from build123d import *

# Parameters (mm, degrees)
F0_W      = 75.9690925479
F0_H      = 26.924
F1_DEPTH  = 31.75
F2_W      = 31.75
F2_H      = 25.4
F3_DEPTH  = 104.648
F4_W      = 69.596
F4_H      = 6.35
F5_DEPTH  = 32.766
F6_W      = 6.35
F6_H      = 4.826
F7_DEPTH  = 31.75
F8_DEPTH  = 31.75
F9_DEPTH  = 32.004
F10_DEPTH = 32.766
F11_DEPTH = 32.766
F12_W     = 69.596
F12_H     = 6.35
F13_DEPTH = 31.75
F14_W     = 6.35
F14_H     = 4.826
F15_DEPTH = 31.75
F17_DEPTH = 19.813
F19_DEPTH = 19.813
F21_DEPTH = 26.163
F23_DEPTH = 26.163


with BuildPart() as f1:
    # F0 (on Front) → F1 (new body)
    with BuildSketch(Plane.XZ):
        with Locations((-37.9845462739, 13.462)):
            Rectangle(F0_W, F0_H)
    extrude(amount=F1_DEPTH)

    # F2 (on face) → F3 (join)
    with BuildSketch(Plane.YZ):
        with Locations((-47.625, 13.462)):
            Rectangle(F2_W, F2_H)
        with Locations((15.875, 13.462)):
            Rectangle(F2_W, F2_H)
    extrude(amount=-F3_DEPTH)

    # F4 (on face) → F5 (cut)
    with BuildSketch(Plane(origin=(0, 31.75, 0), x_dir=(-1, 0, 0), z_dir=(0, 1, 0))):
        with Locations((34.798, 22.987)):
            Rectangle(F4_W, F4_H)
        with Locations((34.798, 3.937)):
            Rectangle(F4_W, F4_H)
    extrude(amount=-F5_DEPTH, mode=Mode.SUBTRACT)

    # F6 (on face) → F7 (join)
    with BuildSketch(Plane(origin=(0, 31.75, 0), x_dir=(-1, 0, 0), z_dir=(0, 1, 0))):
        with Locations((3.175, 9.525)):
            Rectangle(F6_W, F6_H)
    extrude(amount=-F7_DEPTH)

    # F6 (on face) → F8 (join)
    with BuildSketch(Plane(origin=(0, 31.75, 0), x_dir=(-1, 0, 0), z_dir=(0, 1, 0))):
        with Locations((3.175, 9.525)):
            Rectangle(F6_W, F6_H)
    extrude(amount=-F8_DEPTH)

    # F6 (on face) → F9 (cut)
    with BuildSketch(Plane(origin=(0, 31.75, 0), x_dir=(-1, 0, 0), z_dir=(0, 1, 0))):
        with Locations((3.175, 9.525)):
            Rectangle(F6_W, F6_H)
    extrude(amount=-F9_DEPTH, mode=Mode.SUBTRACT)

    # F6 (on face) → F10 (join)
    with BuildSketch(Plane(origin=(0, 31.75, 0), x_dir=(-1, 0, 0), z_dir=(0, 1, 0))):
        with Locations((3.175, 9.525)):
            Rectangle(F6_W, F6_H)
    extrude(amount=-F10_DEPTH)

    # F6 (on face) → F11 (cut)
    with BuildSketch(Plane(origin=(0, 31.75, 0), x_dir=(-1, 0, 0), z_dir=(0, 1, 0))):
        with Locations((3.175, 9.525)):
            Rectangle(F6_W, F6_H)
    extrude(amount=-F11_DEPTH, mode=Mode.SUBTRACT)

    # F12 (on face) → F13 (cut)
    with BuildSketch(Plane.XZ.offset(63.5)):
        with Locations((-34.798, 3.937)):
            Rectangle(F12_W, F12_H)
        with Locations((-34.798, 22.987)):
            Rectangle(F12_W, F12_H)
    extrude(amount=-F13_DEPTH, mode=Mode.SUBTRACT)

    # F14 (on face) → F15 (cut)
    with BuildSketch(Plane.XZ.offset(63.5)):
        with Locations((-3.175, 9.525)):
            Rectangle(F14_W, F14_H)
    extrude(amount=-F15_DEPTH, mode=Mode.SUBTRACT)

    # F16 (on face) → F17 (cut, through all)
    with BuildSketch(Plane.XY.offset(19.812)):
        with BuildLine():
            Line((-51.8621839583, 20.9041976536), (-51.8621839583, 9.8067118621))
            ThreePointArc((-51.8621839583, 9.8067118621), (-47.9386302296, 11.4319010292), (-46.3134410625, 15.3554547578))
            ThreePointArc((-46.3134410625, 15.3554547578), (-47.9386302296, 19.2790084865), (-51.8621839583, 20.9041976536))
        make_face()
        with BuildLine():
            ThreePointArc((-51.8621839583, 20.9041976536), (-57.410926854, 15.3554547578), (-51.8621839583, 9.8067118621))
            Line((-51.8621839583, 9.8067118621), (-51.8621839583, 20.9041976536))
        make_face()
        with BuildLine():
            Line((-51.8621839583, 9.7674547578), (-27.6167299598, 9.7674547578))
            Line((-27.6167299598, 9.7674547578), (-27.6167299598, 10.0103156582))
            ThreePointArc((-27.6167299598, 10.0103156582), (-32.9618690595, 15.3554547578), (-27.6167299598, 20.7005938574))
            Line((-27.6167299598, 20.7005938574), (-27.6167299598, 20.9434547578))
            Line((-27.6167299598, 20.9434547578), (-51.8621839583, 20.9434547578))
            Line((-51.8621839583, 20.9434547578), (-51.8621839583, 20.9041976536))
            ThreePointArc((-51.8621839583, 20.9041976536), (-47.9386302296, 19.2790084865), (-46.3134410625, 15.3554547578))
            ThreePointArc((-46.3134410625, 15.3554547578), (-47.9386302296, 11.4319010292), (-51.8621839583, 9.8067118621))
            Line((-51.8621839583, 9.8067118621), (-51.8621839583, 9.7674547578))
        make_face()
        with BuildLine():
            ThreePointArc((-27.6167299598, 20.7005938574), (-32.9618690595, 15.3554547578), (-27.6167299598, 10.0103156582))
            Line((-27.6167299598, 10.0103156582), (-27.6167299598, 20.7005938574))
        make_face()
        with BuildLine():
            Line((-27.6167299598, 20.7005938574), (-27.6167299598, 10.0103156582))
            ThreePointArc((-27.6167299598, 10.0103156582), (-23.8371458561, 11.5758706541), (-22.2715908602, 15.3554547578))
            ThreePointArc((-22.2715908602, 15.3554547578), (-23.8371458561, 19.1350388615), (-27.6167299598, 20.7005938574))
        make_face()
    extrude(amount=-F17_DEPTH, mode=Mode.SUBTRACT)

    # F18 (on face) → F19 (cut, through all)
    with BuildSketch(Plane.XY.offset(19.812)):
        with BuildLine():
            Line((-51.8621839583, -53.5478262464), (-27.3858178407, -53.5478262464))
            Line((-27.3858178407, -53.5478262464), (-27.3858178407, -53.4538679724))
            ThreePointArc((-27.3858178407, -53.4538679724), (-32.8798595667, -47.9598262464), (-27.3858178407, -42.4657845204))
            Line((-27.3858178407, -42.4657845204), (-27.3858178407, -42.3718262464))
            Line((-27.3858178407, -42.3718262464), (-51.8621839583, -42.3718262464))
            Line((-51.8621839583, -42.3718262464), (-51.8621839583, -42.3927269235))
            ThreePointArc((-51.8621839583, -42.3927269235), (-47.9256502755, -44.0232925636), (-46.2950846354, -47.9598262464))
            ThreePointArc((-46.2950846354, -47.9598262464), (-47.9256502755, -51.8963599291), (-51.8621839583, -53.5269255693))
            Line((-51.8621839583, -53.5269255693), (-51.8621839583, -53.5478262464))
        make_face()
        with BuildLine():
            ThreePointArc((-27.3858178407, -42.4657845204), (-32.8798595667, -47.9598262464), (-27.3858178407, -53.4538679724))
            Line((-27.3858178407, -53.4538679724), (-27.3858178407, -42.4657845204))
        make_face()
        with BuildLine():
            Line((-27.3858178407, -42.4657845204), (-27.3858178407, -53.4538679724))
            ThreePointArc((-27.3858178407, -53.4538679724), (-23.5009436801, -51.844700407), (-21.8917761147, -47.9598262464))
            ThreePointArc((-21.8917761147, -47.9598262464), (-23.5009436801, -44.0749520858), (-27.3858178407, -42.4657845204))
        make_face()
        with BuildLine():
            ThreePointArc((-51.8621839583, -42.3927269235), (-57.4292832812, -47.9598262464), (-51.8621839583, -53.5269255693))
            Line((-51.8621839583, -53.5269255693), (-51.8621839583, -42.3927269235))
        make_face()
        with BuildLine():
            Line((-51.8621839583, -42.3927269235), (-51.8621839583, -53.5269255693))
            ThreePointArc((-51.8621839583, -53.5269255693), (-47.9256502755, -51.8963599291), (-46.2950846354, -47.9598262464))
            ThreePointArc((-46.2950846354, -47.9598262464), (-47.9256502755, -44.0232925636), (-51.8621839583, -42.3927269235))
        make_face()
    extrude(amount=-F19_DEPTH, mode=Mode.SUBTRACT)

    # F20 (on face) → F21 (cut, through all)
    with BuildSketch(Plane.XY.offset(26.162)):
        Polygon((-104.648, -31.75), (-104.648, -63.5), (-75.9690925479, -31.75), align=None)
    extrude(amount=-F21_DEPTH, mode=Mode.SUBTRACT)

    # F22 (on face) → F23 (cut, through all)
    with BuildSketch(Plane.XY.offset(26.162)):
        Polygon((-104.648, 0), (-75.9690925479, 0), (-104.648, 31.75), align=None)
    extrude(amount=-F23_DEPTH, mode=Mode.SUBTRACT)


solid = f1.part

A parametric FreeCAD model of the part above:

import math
import FreeCAD as App
import Part
import Sketcher
from FreeCAD import Vector
Q = App.Units.Quantity


def add_polygon(sketch, points):
    """Adds a closed chain of lines whose ends are joined by coincident constraints."""
    first, n = sketch.GeometryCount, len(points)
    for a, b in zip(points, points[1:] + points[:1]):
        sketch.addGeometry(Part.LineSegment(App.Vector(*a, 0), App.Vector(*b, 0)), False)
    for i in range(n):
        sketch.addConstraint(Sketcher.Constraint("Coincident", first + i, 2, first + (i + 1) % n, 1))

doc = App.newDocument("Part")
body = doc.addObject("PartDesign::Body", "Body")

# Sketch on XZ plane
sketch1 = body.newObject("Sketcher::SketchObject", "Sketch")
sketch1.AttachmentSupport = (doc.getObject("XZ_Plane"), [""])
sketch1.MapMode = "FlatFace"
add_polygon(sketch1, [(-76, 27), (-76, 0), (0, 0), (0, 27)])  # lines 0-3
sketch1.addConstraint([
    Sketcher.Constraint("Vertical", 0),
    Sketcher.Constraint("Horizontal", 1),
    Sketcher.Constraint("Vertical", 2),
    Sketcher.Constraint("Horizontal", 3),
    Sketcher.Constraint("Coincident", 1, 2, -1, 1),
    Sketcher.Constraint("DistanceY", 0, 2, 0, 1, Q("1.06 in")),
    Sketcher.Constraint("DistanceX", 1, 1, 1, 2, Q("75.969093 mm")),
])
pad1 = body.newObject("PartDesign::Pad", "Pad")
pad1.Profile = sketch1
pad1.Length = Q("1.25 in")

# Sketch on YZ plane
sketch2 = body.newObject("Sketcher::SketchObject", "Sketch001")
sketch2.AttachmentSupport = (doc.getObject("YZ_Plane"), [""])
sketch2.MapMode = "FlatFace"
add_polygon(sketch2, [(-64, 26), (-64, 1), (-32, 1), (-32, 26)])  # lines 0-3
add_polygon(sketch2, [(0, 26), (0, 1), (32, 1), (32, 26)])  # lines 4-7
sketch2.addConstraint([
    Sketcher.Constraint("Vertical", 0),
    Sketcher.Constraint("Horizontal", 1),
    Sketcher.Constraint("Vertical", 2),
    Sketcher.Constraint("Horizontal", 3),
    Sketcher.Constraint("Vertical", 4),
    Sketcher.Constraint("Horizontal", 5),
    Sketcher.Constraint("Vertical", 6),
    Sketcher.Constraint("Horizontal", 7),
    Sketcher.Constraint("Symmetric", 1, 2, 5, 2, -2),
    Sketcher.Constraint("PointOnObject", 4, 2, -2),
    Sketcher.Constraint("Horizontal", 3, 2, 6, 2),
    Sketcher.Constraint("Equal", 3, 5),
    Sketcher.Constraint("DistanceY", 0, 2, 0, 1, Q("1 in")),
    Sketcher.Constraint("DistanceX", 1, 1, 1, 2, Q("1.25 in")),
    Sketcher.Constraint("DistanceY", -1, 1, 0, 2, Q("0.03 in")),
])
pad2 = body.newObject("PartDesign::Pad", "Pad001")
pad2.Profile = sketch2
pad2.Length = Q("4.12 in")
pad2.Reversed = True

# Sketch on XZ plane
sketch3 = body.newObject("Sketcher::SketchObject", "Sketch002")
sketch3.AttachmentSupport = (doc.getObject("XZ_Plane"), [""])
sketch3.MapMode = "FlatFace"
sketch3.AttachmentOffset = App.Placement(Vector(0, 0, -1.25 * 25.4), App.Rotation())
add_polygon(sketch3, [(0, 26), (0, 20), (-70, 20), (-70, 26)])  # lines 0-3
add_polygon(sketch3, [(0, 7), (0, 1), (-70, 1), (-70, 7)])  # lines 4-7
sketch3.addConstraint([
    Sketcher.Constraint("Vertical", 0),
    Sketcher.Constraint("Horizontal", 1),
    Sketcher.Constraint("Vertical", 2),
    Sketcher.Constraint("Horizontal", 3),
    Sketcher.Constraint("Vertical", 4),
    Sketcher.Constraint("Horizontal", 5),
    Sketcher.Constraint("Vertical", 6),
    Sketcher.Constraint("Horizontal", 7),
    Sketcher.Constraint("PointOnObject", 0, 2, -2),
    Sketcher.Constraint("PointOnObject", 4, 2, -2),
    Sketcher.Constraint("Vertical", 2, 2, 5, 2),
    Sketcher.Constraint("Equal", 2, 4),
    Sketcher.Constraint("DistanceY", 4, 2, 3, 2, Q("1 in")),
    Sketcher.Constraint("DistanceX", 1, 2, 1, 1, Q("2.74 in")),
    Sketcher.Constraint("DistanceY", 0, 2, 0, 1, Q("0.25 in")),
    Sketcher.Constraint("DistanceY", -1, 1, 0, 2, Q("0.78 in")),
])
pocket1 = body.newObject("PartDesign::Pocket", "Pocket")
pocket1.Profile = sketch3
pocket1.Length = Q("1.29 in")
pocket1.Reversed = True

# Sketch on XZ plane
sketch4 = body.newObject("Sketcher::SketchObject", "Sketch003")
sketch4.AttachmentSupport = (doc.getObject("XZ_Plane"), [""])
sketch4.MapMode = "FlatFace"
sketch4.AttachmentOffset = App.Placement(Vector(0, 0, -1.25 * 25.4), App.Rotation())
add_polygon(sketch4, [(0, 11.9), (0, 7.1), (-6.3, 7.1), (-6.3, 11.9)])  # lines 0-3
sketch4.addConstraint([
    Sketcher.Constraint("Vertical", 0),
    Sketcher.Constraint("Horizontal", 1),
    Sketcher.Constraint("Vertical", 2),
    Sketcher.Constraint("Horizontal", 3),
    Sketcher.Constraint("PointOnObject", 0, 2, -2),
    Sketcher.Constraint("DistanceX", 1, 2, 1, 1, Q("0.25 in")),
    Sketcher.Constraint("DistanceY", 0, 2, 0, 1, Q("0.19 in")),
    Sketcher.Constraint("DistanceY", -1, 1, 0, 2, Q("0.28 in")),
])
pad3 = body.newObject("PartDesign::Pad", "Pad002")
pad3.Profile = sketch4
pad3.Length = Q("1.25 in")

# Sketch on XZ plane
sketch5 = body.newObject("Sketcher::SketchObject", "Sketch004")
sketch5.AttachmentSupport = (doc.getObject("XZ_Plane"), [""])
sketch5.MapMode = "FlatFace"
sketch5.AttachmentOffset = App.Placement(Vector(0, 0, -1.25 * 25.4), App.Rotation())
add_polygon(sketch5, [(0, 11.9), (0, 7.1), (-6.3, 7.1), (-6.3, 11.9)])  # lines 0-3
sketch5.addConstraint([
    Sketcher.Constraint("Vertical", 0),
    Sketcher.Constraint("Horizontal", 1),
    Sketcher.Constraint("Vertical", 2),
    Sketcher.Constraint("Horizontal", 3),
    Sketcher.Constraint("PointOnObject", 0, 2, -2),
    Sketcher.Constraint("DistanceX", 1, 2, 1, 1, Q("0.25 in")),
    Sketcher.Constraint("DistanceY", 0, 2, 0, 1, Q("0.19 in")),
    Sketcher.Constraint("DistanceY", -1, 1, 0, 2, Q("0.28 in")),
])
pad4 = body.newObject("PartDesign::Pad", "Pad003")
pad4.Profile = sketch5
pad4.Length = Q("1.25 in")

# Sketch on XZ plane
sketch6 = body.newObject("Sketcher::SketchObject", "Sketch005")
sketch6.AttachmentSupport = (doc.getObject("XZ_Plane"), [""])
sketch6.MapMode = "FlatFace"
sketch6.AttachmentOffset = App.Placement(Vector(0, 0, -1.25 * 25.4), App.Rotation())
add_polygon(sketch6, [(0, 11.9), (0, 7.1), (-6.3, 7.1), (-6.3, 11.9)])  # lines 0-3
sketch6.addConstraint([
    Sketcher.Constraint("Vertical", 0),
    Sketcher.Constraint("Horizontal", 1),
    Sketcher.Constraint("Vertical", 2),
    Sketcher.Constraint("Horizontal", 3),
    Sketcher.Constraint("PointOnObject", 0, 2, -2),
    Sketcher.Constraint("DistanceX", 1, 2, 1, 1, Q("0.25 in")),
    Sketcher.Constraint("DistanceY", 0, 2, 0, 1, Q("0.19 in")),
    Sketcher.Constraint("DistanceY", -1, 1, 0, 2, Q("0.28 in")),
])
pocket2 = body.newObject("PartDesign::Pocket", "Pocket001")
pocket2.Profile = sketch6
pocket2.Length = Q("1.26 in")
pocket2.Reversed = True

# Sketch on XZ plane
sketch7 = body.newObject("Sketcher::SketchObject", "Sketch006")
sketch7.AttachmentSupport = (doc.getObject("XZ_Plane"), [""])
sketch7.MapMode = "FlatFace"
sketch7.AttachmentOffset = App.Placement(Vector(0, 0, -1.25 * 25.4), App.Rotation())
add_polygon(sketch7, [(0, 11.9), (0, 7.1), (-6.3, 7.1), (-6.3, 11.9)])  # lines 0-3
sketch7.addConstraint([
    Sketcher.Constraint("Vertical", 0),
    Sketcher.Constraint("Horizontal", 1),
    Sketcher.Constraint("Vertical", 2),
    Sketcher.Constraint("Horizontal", 3),
    Sketcher.Constraint("PointOnObject", 0, 2, -2),
    Sketcher.Constraint("DistanceX", 1, 2, 1, 1, Q("0.25 in")),
    Sketcher.Constraint("DistanceY", 0, 2, 0, 1, Q("0.19 in")),
    Sketcher.Constraint("DistanceY", -1, 1, 0, 2, Q("0.28 in")),
])
pad5 = body.newObject("PartDesign::Pad", "Pad004")
pad5.Profile = sketch7
pad5.Length = Q("1.29 in")

# Sketch on XZ plane
sketch8 = body.newObject("Sketcher::SketchObject", "Sketch007")
sketch8.AttachmentSupport = (doc.getObject("XZ_Plane"), [""])
sketch8.MapMode = "FlatFace"
sketch8.AttachmentOffset = App.Placement(Vector(0, 0, -1.25 * 25.4), App.Rotation())
add_polygon(sketch8, [(0, 11.9), (0, 7.1), (-6.3, 7.1), (-6.3, 11.9)])  # lines 0-3
sketch8.addConstraint([
    Sketcher.Constraint("Vertical", 0),
    Sketcher.Constraint("Horizontal", 1),
    Sketcher.Constraint("Vertical", 2),
    Sketcher.Constraint("Horizontal", 3),
    Sketcher.Constraint("PointOnObject", 0, 2, -2),
    Sketcher.Constraint("DistanceX", 1, 2, 1, 1, Q("0.25 in")),
    Sketcher.Constraint("DistanceY", 0, 2, 0, 1, Q("0.19 in")),
    Sketcher.Constraint("DistanceY", -1, 1, 0, 2, Q("0.28 in")),
])
pocket3 = body.newObject("PartDesign::Pocket", "Pocket002")
pocket3.Profile = sketch8
pocket3.Length = Q("1.29 in")
pocket3.Reversed = True

# Sketch on XZ plane
sketch9 = body.newObject("Sketcher::SketchObject", "Sketch008")
sketch9.AttachmentSupport = (doc.getObject("XZ_Plane"), [""])
sketch9.MapMode = "FlatFace"
sketch9.AttachmentOffset = App.Placement(Vector(0, 0, 2.5 * 25.4), App.Rotation())
add_polygon(sketch9, [(-70, 7), (-70, 1), (0, 1), (0, 7)])  # lines 0-3
add_polygon(sketch9, [(-70, 26), (-70, 20), (0, 20), (0, 26)])  # lines 4-7
sketch9.addConstraint([
    Sketcher.Constraint("Vertical", 0),
    Sketcher.Constraint("Horizontal", 1),
    Sketcher.Constraint("Vertical", 2),
    Sketcher.Constraint("Horizontal", 3),
    Sketcher.Constraint("Vertical", 4),
    Sketcher.Constraint("Horizontal", 5),
    Sketcher.Constraint("Vertical", 6),
    Sketcher.Constraint("Horizontal", 7),
    Sketcher.Constraint("PointOnObject", 1, 2, -2),
    Sketcher.Constraint("PointOnObject", 5, 2, -2),
    Sketcher.Constraint("Vertical", 3, 2, 4, 2),
    Sketcher.Constraint("Equal", 2, 4),
    Sketcher.Constraint("DistanceY", 1, 2, 6, 2, Q("1 in")),
    Sketcher.Constraint("DistanceX", 1, 1, 1, 2, Q("2.74 in")),
    Sketcher.Constraint("DistanceY", 0, 2, 0, 1, Q("0.25 in")),
    Sketcher.Constraint("DistanceY", -1, 1, 0, 2, Q("0.03 in")),
])
pocket4 = body.newObject("PartDesign::Pocket", "Pocket003")
pocket4.Profile = sketch9
pocket4.Length = Q("1.25 in")

# Sketch on XZ plane
sketch10 = body.newObject("Sketcher::SketchObject", "Sketch009")
sketch10.AttachmentSupport = (doc.getObject("XZ_Plane"), [""])
sketch10.MapMode = "FlatFace"
sketch10.AttachmentOffset = App.Placement(Vector(0, 0, 2.5 * 25.4), App.Rotation())
add_polygon(sketch10, [(-6.3, 11.9), (-6.3, 7.1), (0, 7.1), (0, 11.9)])  # lines 0-3
sketch10.addConstraint([
    Sketcher.Constraint("Vertical", 0),
    Sketcher.Constraint("Horizontal", 1),
    Sketcher.Constraint("Vertical", 2),
    Sketcher.Constraint("Horizontal", 3),
    Sketcher.Constraint("PointOnObject", 1, 2, -2),
    Sketcher.Constraint("DistanceX", 1, 1, 1, 2, Q("0.25 in")),
    Sketcher.Constraint("DistanceY", 0, 2, 0, 1, Q("0.19 in")),
    Sketcher.Constraint("DistanceY", -1, 1, 0, 2, Q("0.28 in")),
])
pocket5 = body.newObject("PartDesign::Pocket", "Pocket004")
pocket5.Profile = sketch10
pocket5.Length = Q("1.25 in")

# Sketch on XY plane
sketch11 = body.newObject("Sketcher::SketchObject", "Sketch010")
sketch11.AttachmentSupport = (doc.getObject("XY_Plane"), [""])
sketch11.MapMode = "FlatFace"
sketch11.AttachmentOffset = App.Placement(Vector(0, 0, 0.78 * 25.4), App.Rotation())
sketch11.addGeometry([
    Part.ArcOfCircle(Part.Circle(Vector(-51.862, 15.355, 0), Vector(0, 0, 1), 5.549), math.radians(90), math.radians(270)),  # 0
    Part.LineSegment(Vector(-51.862, 9.807, 0), Vector(-51.862, 9.767, 0)),  # 1
    Part.LineSegment(Vector(-51.862, 9.767, 0), Vector(-27.617, 9.767, 0)),  # 2
    Part.LineSegment(Vector(-27.617, 9.767, 0), Vector(-27.617, 10.01, 0)),  # 3
    Part.ArcOfCircle(Part.Circle(Vector(-27.617, 15.355, 0), Vector(0, 0, 1), 5.345), math.radians(-90), math.radians(0)),  # 4
    Part.ArcOfCircle(Part.Circle(Vector(-27.617, 15.355, 0), Vector(0, 0, 1), 5.345), math.radians(0), math.radians(90)),  # 5
    Part.LineSegment(Vector(-27.617, 20.701, 0), Vector(-27.617, 20.943, 0)),  # 6
    Part.LineSegment(Vector(-27.617, 20.943, 0), Vector(-51.862, 20.943, 0)),  # 7
    Part.LineSegment(Vector(-51.862, 20.943, 0), Vector(-51.862, 20.904, 0)),  # 8
], False)
sketch11.addConstraint([
    Sketcher.Constraint("Coincident", 0, 2, 1, 1),
    Sketcher.Constraint("Coincident", 1, 2, 2, 1),
    Sketcher.Constraint("Coincident", 2, 2, 3, 1),
    Sketcher.Constraint("Coincident", 3, 2, 4, 1),
    Sketcher.Constraint("Tangent", 4, 2, 5, 1),
    Sketcher.Constraint("Coincident", 5, 2, 6, 1),
    Sketcher.Constraint("Coincident", 6, 2, 7, 1),
    Sketcher.Constraint("Coincident", 7, 2, 8, 1),
    Sketcher.Constraint("Coincident", 8, 2, 0, 1),
    Sketcher.Constraint("Vertical", 1),
    Sketcher.Constraint("Horizontal", 2),
    Sketcher.Constraint("Vertical", 3),
    Sketcher.Constraint("Vertical", 6),
    Sketcher.Constraint("Horizontal", 7),
    Sketcher.Constraint("Vertical", 8),
    Sketcher.Constraint("Equal", 4, 5),
    Sketcher.Constraint("Horizontal", 0, 3, 4, 3),
    Sketcher.Constraint("Horizontal", 5, 3, 4, 2),
    Sketcher.Constraint("Vertical", 5, 3, 2, 2),
    Sketcher.Constraint("Vertical", 3, 2, 5, 2),
    Sketcher.Constraint("Vertical", 1, 2, 7, 2),
    Sketcher.Constraint("Equal", 3, 6),
    Sketcher.Constraint("DistanceY", 1, 2, 0, 3, Q("0.22 in")),
    Sketcher.Constraint("DistanceY", -1, 1, 8, 2, Q("0.8229999 in")),
    Sketcher.Constraint("Radius", 4, Q("5.345139 mm")),
    Sketcher.Constraint("Radius", 0, Q("5.548743 mm")),
    Sketcher.Constraint("DistanceX", 2, 1, 2, 2, Q("24.245454 mm")),
    Sketcher.Constraint("DistanceX", 4, 3, -1, 1, Q("27.61673 mm")),
    Sketcher.Constraint("DistanceX", 0, 3, -1, 1, Q("51.862184 mm")),
])
pocket6 = body.newObject("PartDesign::Pocket", "Pocket005")
pocket6.Profile = sketch11
pocket6.Type = "ThroughAll"

# Sketch on XY plane
sketch12 = body.newObject("Sketcher::SketchObject", "Sketch011")
sketch12.AttachmentSupport = (doc.getObject("XY_Plane"), [""])
sketch12.MapMode = "FlatFace"
sketch12.AttachmentOffset = App.Placement(Vector(0, 0, 0.78 * 25.4), App.Rotation())
sketch12.addGeometry([
    Part.LineSegment(Vector(-51.862, -53.548, 0), Vector(-27.386, -53.548, 0)),  # 0
    Part.LineSegment(Vector(-27.386, -53.548, 0), Vector(-27.386, -53.454, 0)),  # 1
    Part.ArcOfCircle(Part.Circle(Vector(-27.386, -47.96, 0), Vector(0, 0, 1), 5.494), math.radians(-90), math.radians(0)),  # 2
    Part.ArcOfCircle(Part.Circle(Vector(-27.386, -47.96, 0), Vector(0, 0, 1), 5.494), math.radians(0), math.radians(90)),  # 3
    Part.LineSegment(Vector(-27.386, -42.466, 0), Vector(-27.386, -42.372, 0)),  # 4
    Part.LineSegment(Vector(-27.386, -42.372, 0), Vector(-51.862, -42.372, 0)),  # 5
    Part.LineSegment(Vector(-51.862, -42.372, 0), Vector(-51.862, -42.393, 0)),  # 6
    Part.ArcOfCircle(Part.Circle(Vector(-51.862, -47.96, 0), Vector(0, 0, 1), 5.567), math.radians(90), math.radians(270)),  # 7
    Part.LineSegment(Vector(-51.862, -53.527, 0), Vector(-51.862, -53.548, 0)),  # 8
], False)
sketch12.addConstraint([
    Sketcher.Constraint("Coincident", 0, 2, 1, 1),
    Sketcher.Constraint("Coincident", 1, 2, 2, 1),
    Sketcher.Constraint("Tangent", 2, 2, 3, 1),
    Sketcher.Constraint("Coincident", 3, 2, 4, 1),
    Sketcher.Constraint("Coincident", 4, 2, 5, 1),
    Sketcher.Constraint("Coincident", 5, 2, 6, 1),
    Sketcher.Constraint("Coincident", 6, 2, 7, 1),
    Sketcher.Constraint("Coincident", 7, 2, 8, 1),
    Sketcher.Constraint("Coincident", 8, 2, 0, 1),
    Sketcher.Constraint("Horizontal", 0),
    Sketcher.Constraint("Vertical", 1),
    Sketcher.Constraint("Vertical", 4),
    Sketcher.Constraint("Horizontal", 5),
    Sketcher.Constraint("Vertical", 6),
    Sketcher.Constraint("Vertical", 8),
    Sketcher.Constraint("Equal", 2, 3),
    Sketcher.Constraint("Horizontal", 3, 3, 7, 3),
    Sketcher.Constraint("Horizontal", 7, 3, 2, 2),
    Sketcher.Constraint("Vertical", 3, 3, 0, 2),
    Sketcher.Constraint("Vertical", 1, 2, 3, 2),
    Sketcher.Constraint("Vertical", 7, 3, 5, 2),
    Sketcher.Constraint("Vertical", 6, 2, 7, 2),
    Sketcher.Constraint("Equal", 1, 4),
    Sketcher.Constraint("Radius", 7, Q("5.567099 mm")),
    Sketcher.Constraint("DistanceY", 0, 2, 2, 3, Q("0.22 in")),
    Sketcher.Constraint("Radius", 2, Q("5.494042 mm")),
    Sketcher.Constraint("DistanceX", 0, 1, 0, 2, Q("24.476366 mm")),
    Sketcher.Constraint("DistanceX", 2, 3, -1, 1, Q("27.385818 mm")),
    Sketcher.Constraint("DistanceY", 2, 3, -1, 1, Q("47.959826 mm")),
])
pocket7 = body.newObject("PartDesign::Pocket", "Pocket006")
pocket7.Profile = sketch12
pocket7.Type = "ThroughAll"

# Sketch on XY plane
sketch13 = body.newObject("Sketcher::SketchObject", "Sketch012")
sketch13.AttachmentSupport = (doc.getObject("XY_Plane"), [""])
sketch13.MapMode = "FlatFace"
sketch13.AttachmentOffset = App.Placement(Vector(0, 0, 1.03 * 25.4), App.Rotation())
add_polygon(sketch13, [(-105, -32), (-105, -64), (-76, -32)])  # lines 0-2
sketch13.addConstraint([
    Sketcher.Constraint("Vertical", 0),
    Sketcher.Constraint("Horizontal", 2),
    Sketcher.Constraint("DistanceY", 0, 2, 0, 1, Q("1.25 in")),
    Sketcher.Constraint("DistanceY", 0, 2, -1, 1, Q("2.5 in")),
    Sketcher.Constraint("DistanceX", 0, 2, -1, 1, Q("4.12 in")),
    Sketcher.Constraint("DistanceX", 2, 2, 2, 1, Q("28.678907 mm")),
])
pocket8 = body.newObject("PartDesign::Pocket", "Pocket007")
pocket8.Profile = sketch13
pocket8.Type = "ThroughAll"

# Sketch on XY plane
sketch14 = body.newObject("Sketcher::SketchObject", "Sketch013")
sketch14.AttachmentSupport = (doc.getObject("XY_Plane"), [""])
sketch14.MapMode = "FlatFace"
sketch14.AttachmentOffset = App.Placement(Vector(0, 0, 1.03 * 25.4), App.Rotation())
add_polygon(sketch14, [(-105, 0), (-76, 0), (-105, 32)])  # lines 0-2
sketch14.addConstraint([
    Sketcher.Constraint("Horizontal", 0),
    Sketcher.Constraint("Vertical", 2),
    Sketcher.Constraint("PointOnObject", 0, 2, -1),
    Sketcher.Constraint("DistanceY", 2, 2, 2, 1, Q("1.25 in")),
    Sketcher.Constraint("DistanceX", 1, 2, -1, 1, Q("4.12 in")),
    Sketcher.Constraint("DistanceX", 0, 1, 0, 2, Q("28.678907 mm")),
])
pocket9 = body.newObject("PartDesign::Pocket", "Pocket008")
pocket9.Profile = sketch14
pocket9.Type = "ThroughAll"

doc.recompute()
